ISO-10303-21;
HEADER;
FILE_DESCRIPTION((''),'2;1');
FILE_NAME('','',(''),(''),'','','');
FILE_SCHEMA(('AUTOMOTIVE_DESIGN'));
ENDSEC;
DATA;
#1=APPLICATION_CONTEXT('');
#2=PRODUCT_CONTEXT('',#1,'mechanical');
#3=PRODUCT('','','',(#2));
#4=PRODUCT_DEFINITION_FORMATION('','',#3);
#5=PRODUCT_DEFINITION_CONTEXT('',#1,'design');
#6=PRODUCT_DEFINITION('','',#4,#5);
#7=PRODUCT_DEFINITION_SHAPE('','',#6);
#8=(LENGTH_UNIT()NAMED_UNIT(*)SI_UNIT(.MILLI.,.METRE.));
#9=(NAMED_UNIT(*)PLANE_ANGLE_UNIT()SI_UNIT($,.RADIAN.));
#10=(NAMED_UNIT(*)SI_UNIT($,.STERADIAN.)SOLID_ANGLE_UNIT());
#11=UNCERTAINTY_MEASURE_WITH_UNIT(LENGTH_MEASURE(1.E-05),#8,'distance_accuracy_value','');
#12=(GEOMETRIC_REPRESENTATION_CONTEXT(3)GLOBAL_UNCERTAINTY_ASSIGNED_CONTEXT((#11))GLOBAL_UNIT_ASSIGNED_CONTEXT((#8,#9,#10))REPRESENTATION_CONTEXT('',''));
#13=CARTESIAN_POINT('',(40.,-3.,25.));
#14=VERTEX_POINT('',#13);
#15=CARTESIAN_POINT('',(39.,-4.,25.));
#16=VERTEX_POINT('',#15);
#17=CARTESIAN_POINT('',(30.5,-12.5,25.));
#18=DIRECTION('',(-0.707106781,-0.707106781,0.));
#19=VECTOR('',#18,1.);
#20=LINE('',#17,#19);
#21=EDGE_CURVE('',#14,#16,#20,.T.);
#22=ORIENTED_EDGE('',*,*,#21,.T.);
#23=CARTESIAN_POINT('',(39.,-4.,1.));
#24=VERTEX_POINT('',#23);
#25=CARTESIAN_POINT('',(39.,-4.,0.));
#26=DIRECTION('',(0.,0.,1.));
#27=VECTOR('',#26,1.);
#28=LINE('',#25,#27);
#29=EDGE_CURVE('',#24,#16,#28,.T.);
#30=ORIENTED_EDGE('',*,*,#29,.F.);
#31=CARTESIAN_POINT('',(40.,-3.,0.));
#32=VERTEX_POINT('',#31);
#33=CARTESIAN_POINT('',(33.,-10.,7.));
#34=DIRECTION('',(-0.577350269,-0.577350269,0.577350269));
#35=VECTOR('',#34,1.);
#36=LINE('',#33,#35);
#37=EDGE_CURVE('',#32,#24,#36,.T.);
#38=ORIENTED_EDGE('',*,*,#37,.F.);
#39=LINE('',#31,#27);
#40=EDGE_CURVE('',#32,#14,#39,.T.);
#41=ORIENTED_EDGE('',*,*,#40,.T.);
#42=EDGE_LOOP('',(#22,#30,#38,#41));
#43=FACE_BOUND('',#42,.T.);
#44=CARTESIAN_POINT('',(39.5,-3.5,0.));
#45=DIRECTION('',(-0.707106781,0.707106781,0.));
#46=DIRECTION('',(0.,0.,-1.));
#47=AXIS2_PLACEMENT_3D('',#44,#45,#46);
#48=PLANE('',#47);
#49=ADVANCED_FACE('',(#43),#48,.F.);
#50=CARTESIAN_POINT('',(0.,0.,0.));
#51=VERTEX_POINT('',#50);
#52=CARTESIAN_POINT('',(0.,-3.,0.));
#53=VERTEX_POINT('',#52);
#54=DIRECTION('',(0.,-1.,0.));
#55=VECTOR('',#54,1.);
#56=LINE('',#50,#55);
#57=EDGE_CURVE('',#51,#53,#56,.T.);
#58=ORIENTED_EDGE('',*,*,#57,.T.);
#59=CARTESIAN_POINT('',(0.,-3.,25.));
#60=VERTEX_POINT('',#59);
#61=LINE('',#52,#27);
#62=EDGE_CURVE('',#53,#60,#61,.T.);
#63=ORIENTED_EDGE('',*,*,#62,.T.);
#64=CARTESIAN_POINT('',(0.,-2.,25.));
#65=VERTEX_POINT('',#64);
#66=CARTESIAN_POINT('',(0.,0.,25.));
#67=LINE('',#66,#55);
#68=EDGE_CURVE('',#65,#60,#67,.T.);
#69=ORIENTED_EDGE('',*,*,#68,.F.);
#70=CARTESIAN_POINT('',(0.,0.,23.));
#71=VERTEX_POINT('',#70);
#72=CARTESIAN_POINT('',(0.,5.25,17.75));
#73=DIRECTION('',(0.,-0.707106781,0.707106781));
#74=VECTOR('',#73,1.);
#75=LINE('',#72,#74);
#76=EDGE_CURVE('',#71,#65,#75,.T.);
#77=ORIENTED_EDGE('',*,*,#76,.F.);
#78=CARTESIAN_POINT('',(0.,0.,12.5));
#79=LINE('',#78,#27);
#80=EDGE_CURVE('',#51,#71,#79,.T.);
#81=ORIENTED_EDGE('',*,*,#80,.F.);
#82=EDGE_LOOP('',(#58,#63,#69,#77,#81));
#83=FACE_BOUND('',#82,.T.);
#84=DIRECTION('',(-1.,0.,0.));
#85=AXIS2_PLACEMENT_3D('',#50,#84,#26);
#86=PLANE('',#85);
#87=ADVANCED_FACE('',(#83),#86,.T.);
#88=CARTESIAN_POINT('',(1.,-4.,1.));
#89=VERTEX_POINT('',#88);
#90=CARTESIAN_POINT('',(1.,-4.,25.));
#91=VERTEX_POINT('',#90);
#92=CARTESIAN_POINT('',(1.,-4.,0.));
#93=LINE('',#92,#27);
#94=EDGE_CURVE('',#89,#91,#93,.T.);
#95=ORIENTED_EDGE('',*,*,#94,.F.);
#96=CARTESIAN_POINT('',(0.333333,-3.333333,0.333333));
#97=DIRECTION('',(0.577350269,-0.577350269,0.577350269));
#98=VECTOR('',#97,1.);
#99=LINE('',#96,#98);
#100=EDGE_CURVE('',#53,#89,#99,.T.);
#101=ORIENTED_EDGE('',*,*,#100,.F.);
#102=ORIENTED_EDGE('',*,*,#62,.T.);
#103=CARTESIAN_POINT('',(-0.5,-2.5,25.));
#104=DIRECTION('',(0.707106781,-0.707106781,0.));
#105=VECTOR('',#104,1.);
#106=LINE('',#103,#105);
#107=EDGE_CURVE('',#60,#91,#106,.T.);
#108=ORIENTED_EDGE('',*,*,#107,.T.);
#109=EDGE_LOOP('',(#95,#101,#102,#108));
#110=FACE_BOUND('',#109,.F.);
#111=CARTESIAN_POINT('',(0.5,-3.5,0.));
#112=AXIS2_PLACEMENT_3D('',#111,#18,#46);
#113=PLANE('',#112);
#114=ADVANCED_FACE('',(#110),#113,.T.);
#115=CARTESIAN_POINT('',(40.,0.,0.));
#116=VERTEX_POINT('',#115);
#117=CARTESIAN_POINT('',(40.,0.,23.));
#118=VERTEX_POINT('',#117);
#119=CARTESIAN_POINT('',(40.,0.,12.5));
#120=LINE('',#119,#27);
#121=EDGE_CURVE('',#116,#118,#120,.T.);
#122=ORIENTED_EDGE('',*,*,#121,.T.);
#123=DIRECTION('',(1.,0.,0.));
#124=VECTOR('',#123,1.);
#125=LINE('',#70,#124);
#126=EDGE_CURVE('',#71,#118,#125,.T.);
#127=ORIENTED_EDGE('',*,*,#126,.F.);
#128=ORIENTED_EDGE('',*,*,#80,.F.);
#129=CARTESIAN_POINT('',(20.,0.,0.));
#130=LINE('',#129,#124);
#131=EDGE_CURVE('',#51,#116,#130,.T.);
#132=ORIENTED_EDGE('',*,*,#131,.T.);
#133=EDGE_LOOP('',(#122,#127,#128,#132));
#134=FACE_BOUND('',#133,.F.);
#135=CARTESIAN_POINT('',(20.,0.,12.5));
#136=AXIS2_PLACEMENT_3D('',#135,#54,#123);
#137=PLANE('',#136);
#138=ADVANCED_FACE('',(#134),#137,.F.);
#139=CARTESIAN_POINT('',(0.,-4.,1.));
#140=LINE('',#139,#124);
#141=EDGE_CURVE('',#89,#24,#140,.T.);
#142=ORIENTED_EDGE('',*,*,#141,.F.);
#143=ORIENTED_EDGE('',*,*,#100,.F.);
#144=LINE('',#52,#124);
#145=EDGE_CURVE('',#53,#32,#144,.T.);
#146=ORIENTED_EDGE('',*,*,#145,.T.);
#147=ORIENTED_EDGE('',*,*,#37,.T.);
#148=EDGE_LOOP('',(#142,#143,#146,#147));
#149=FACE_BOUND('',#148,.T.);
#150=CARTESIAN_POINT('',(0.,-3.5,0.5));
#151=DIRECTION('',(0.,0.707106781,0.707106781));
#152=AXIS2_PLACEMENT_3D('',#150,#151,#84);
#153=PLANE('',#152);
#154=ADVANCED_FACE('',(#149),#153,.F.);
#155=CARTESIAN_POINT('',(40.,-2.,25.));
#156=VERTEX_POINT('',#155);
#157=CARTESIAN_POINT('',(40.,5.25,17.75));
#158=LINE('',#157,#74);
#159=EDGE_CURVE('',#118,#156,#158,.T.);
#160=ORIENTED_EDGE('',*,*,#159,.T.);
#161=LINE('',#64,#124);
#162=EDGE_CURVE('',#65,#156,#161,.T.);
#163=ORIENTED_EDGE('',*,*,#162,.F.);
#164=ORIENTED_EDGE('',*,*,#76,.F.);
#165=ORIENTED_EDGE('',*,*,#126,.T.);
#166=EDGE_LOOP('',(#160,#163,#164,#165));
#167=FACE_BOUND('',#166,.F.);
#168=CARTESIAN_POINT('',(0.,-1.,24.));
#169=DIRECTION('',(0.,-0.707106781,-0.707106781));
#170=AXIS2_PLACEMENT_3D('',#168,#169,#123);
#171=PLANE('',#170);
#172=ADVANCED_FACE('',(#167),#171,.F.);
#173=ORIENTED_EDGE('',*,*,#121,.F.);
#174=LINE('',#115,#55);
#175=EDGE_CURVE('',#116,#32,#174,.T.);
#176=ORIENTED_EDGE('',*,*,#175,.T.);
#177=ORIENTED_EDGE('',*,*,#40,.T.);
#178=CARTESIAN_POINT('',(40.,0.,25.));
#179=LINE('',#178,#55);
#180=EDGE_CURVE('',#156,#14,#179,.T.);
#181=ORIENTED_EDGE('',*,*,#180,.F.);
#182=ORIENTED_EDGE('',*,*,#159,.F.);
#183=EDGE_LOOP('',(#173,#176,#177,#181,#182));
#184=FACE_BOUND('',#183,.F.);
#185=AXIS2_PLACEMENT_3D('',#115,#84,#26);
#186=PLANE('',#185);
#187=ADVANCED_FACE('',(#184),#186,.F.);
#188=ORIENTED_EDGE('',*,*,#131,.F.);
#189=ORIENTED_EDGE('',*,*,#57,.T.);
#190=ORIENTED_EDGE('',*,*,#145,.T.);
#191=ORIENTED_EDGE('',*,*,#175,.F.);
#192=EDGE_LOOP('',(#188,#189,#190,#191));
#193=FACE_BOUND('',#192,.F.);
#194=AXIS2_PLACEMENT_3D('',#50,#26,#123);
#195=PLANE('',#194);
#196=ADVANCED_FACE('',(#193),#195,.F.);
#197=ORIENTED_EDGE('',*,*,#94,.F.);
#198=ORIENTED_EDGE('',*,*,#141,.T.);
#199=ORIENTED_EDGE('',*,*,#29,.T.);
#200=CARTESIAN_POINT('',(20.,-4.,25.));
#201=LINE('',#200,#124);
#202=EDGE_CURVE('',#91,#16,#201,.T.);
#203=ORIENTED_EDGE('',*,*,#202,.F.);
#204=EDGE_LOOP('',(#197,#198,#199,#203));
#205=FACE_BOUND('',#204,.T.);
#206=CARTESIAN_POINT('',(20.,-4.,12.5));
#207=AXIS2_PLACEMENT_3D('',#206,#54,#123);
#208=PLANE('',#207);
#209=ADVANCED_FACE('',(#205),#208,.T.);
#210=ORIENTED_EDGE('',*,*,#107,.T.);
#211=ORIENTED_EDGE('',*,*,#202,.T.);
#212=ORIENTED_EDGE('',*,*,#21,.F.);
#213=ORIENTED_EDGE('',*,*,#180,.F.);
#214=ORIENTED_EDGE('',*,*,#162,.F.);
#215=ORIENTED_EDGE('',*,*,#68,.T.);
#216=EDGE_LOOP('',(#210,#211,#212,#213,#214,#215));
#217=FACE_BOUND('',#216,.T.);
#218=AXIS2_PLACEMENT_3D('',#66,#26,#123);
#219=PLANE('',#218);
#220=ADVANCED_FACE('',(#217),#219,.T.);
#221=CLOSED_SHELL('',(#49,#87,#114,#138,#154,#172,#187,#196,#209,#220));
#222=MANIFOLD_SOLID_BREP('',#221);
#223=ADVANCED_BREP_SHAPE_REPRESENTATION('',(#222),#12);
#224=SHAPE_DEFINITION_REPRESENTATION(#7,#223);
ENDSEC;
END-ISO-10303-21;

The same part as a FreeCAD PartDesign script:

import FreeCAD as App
import Part
import Sketcher
Q = App.Units.Quantity


def edges_at(feature, points):
    """Names of the edges that pass closest to the given points."""
    edges = feature.Shape.Edges
    near = lambda p: min(range(len(edges)), key=lambda i: edges[i].distToShape(Part.Vertex(*p))[0])
    return sorted({f"Edge{near(p) + 1}" for p in points})


def add_polygon(sketch, points):
    """Adds a closed chain of lines whose ends are joined by coincident constraints."""
    first, n = sketch.GeometryCount, len(points)
    for a, b in zip(points, points[1:] + points[:1]):
        sketch.addGeometry(Part.LineSegment(App.Vector(*a, 0), App.Vector(*b, 0)), False)
    for i in range(n):
        sketch.addConstraint(Sketcher.Constraint("Coincident", first + i, 2, first + (i + 1) % n, 1))

doc = App.newDocument("Part")
params = doc.addObject("Spreadsheet::Sheet", "Params")
for row, (alias, value) in enumerate([
    ("sketch1_width", "40 mm"),
    ("sketch1_height", "25 mm"),
    ("pad1_length", "4 mm"),
    ("chamfer_size", "1 mm"),
    ("chamfer2_size", "2 mm"),
], start=1):
    params.set(f"A{row}", alias)
    params.set(f"B{row}", "=" + value)
    params.setAlias(f"B{row}", alias)

body = doc.addObject("PartDesign::Body", "Body")

sketch1 = body.newObject("Sketcher::SketchObject", "Sketch")
sketch1.AttachmentSupport = (doc.getObject("XZ_Plane"), [""])
sketch1.MapMode = "FlatFace"
add_polygon(sketch1, [(0, 25), (0, 0), (40, 0), (40, 25)])
sketch1.addConstraint(Sketcher.Constraint("Vertical", 0))
sketch1.addConstraint(Sketcher.Constraint("Horizontal", 1))
sketch1.addConstraint(Sketcher.Constraint("Vertical", 2))
sketch1.addConstraint(Sketcher.Constraint("Horizontal", 3))
sketch1.addConstraint(Sketcher.Constraint("Coincident", 0, 2, -1, 1))
sketch1.addConstraint(Sketcher.Constraint("DistanceX", 1, 1, 1, 2, Q("40 mm")))
sketch1.addConstraint(Sketcher.Constraint("DistanceY", 0, 2, 0, 1, Q("25 mm")))
sketch1.setExpression("Constraints[9]", "Params.sketch1_width")
sketch1.setExpression("Constraints[10]", "Params.sketch1_height")
pad1 = body.newObject("PartDesign::Pad", "Pad")
pad1.Profile = sketch1
pad1.setExpression("Length", "Params.pad1_length")
doc.recompute()

chamfer = body.newObject("PartDesign::Chamfer", "Chamfer")
chamfer.Base = (pad1, edges_at(pad1, [(0, -4, 12.5), (20, -4, 0), (40, -4, 12.5)]))
chamfer.setExpression("Size", "Params.chamfer_size")
doc.recompute()

chamfer2 = body.newObject("PartDesign::Chamfer", "Chamfer001")
chamfer2.Base = (chamfer, edges_at(chamfer, [(20, 0, 25)]))
chamfer2.setExpression("Size", "Params.chamfer2_size")

doc.recompute()
